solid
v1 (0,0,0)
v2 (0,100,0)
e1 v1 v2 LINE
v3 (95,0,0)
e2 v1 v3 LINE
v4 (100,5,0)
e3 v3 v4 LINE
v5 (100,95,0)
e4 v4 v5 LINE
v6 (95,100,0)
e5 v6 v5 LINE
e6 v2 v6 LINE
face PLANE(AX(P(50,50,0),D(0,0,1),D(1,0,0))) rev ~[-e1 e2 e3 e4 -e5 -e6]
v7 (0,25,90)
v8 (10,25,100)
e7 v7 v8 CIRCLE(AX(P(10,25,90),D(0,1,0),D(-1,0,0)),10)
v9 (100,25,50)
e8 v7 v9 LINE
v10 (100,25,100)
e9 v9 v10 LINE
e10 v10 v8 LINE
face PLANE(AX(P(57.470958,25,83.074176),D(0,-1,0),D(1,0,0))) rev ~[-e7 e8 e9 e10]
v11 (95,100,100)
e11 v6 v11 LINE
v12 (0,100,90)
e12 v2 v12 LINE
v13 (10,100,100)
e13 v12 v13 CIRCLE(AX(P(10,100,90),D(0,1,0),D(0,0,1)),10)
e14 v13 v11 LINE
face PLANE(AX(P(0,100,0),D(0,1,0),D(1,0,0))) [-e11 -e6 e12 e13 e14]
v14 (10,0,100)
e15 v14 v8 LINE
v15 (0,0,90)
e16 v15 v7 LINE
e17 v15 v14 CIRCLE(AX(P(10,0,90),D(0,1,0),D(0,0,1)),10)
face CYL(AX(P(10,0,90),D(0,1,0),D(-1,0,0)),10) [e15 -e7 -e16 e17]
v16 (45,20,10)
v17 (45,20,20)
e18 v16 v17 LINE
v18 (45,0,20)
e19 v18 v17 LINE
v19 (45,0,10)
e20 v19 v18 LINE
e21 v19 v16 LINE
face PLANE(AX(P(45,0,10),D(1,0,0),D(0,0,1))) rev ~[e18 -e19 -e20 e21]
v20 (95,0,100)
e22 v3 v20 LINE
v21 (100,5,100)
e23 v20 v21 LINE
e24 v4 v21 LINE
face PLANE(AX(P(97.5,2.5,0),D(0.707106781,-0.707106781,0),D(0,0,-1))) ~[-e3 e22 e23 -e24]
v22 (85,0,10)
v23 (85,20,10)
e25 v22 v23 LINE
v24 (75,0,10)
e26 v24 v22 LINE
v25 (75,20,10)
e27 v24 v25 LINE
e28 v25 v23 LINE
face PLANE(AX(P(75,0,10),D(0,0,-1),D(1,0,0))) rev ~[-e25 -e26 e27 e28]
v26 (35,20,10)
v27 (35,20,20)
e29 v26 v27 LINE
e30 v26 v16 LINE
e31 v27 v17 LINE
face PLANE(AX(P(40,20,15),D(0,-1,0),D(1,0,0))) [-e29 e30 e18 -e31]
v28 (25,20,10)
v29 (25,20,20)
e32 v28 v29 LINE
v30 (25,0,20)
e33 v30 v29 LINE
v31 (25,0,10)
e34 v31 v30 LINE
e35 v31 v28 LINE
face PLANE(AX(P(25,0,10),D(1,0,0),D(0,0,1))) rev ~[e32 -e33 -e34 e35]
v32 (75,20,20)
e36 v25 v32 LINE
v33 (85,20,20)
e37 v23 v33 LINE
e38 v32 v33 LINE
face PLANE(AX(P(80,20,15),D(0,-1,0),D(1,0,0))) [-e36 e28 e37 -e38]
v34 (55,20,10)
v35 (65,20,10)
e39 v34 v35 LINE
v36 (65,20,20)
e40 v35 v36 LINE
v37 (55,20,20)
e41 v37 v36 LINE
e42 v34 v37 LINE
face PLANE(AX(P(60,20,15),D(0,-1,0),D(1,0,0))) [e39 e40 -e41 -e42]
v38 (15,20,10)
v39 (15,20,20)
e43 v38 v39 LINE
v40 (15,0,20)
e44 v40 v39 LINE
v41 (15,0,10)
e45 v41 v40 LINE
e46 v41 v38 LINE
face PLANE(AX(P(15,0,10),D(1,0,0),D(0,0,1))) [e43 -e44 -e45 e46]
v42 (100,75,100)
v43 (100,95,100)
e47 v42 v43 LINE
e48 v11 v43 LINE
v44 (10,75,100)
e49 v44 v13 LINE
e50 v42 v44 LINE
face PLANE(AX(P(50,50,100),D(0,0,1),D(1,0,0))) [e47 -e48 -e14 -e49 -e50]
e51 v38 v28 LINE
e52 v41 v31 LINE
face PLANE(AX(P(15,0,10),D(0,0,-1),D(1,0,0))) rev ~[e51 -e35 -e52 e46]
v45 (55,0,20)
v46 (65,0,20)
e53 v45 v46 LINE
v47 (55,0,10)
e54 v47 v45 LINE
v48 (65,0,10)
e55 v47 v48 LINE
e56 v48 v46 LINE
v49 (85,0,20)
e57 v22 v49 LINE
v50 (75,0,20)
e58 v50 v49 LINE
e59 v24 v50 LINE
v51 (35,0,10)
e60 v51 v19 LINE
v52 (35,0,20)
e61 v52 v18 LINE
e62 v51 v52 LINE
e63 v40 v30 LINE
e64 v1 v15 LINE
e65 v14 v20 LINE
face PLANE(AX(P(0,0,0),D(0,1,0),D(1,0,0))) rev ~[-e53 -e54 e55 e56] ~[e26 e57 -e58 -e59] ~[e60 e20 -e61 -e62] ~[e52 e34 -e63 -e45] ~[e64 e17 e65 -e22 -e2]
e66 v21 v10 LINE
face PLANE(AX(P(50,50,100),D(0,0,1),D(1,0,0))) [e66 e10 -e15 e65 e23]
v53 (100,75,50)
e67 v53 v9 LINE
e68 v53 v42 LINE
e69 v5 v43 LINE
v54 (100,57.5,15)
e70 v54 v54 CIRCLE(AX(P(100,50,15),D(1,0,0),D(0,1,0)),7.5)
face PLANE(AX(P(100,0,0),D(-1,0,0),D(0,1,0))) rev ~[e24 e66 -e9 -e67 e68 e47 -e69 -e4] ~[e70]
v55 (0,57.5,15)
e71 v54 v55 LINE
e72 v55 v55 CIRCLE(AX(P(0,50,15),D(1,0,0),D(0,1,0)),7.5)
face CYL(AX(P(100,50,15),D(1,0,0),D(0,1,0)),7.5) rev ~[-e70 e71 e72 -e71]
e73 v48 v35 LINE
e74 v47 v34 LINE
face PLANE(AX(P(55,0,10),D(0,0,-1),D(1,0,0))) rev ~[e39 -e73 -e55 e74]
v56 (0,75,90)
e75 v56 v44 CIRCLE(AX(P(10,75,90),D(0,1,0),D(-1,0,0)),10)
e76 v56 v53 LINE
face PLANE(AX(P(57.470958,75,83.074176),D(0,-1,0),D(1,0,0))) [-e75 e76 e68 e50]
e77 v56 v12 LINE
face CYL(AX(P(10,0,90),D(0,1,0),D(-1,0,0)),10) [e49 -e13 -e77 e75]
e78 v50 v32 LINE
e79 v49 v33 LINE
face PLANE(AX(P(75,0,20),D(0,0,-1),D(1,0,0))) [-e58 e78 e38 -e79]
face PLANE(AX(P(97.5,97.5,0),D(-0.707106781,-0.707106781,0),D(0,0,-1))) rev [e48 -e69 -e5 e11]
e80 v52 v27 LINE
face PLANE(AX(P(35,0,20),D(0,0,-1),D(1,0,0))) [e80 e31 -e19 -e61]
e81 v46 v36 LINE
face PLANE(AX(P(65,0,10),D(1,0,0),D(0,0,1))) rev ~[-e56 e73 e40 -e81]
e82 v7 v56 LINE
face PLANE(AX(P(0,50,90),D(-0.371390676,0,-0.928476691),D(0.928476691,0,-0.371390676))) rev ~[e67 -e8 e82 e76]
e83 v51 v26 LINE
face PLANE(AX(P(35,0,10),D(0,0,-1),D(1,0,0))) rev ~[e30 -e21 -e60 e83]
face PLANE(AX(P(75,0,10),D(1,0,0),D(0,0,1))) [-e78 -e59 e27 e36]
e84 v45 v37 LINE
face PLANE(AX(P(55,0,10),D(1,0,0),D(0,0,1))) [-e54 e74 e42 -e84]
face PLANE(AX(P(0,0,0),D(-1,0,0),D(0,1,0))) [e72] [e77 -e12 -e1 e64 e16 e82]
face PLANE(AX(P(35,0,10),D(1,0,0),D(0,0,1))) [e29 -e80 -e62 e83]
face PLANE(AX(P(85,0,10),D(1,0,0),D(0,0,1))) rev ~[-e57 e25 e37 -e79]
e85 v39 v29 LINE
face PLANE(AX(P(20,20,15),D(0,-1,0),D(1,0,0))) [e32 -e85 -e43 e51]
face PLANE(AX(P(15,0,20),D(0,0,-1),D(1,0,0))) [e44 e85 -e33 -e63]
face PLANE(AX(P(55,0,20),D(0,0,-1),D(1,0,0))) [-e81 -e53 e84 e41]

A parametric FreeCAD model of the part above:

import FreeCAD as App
import Part
import Sketcher
from FreeCAD import Vector


def edges_at(feature, points):
    """Names of the edges that pass closest to the given points."""
    edges = feature.Shape.Edges
    near = lambda p: min(range(len(edges)), key=lambda i: edges[i].distToShape(Part.Vertex(*p))[0])
    return sorted({f"Edge{near(p) + 1}" for p in points})

doc = App.newDocument("Part")
body = doc.addObject("PartDesign::Body", "Body")

sketch1 = doc.addObject("Sketcher::SketchObject", "Sketch")
body.addObject(sketch1)
sketch1.AttachmentSupport = (doc.XY_Plane, [""])
sketch1.MapMode = "FlatFace"
sketch1.addGeometry(Part.LineSegment(Vector(0, 100, 0), Vector(0, 0, 0)), False)
sketch1.addGeometry(Part.LineSegment(Vector(0, 0, 0), Vector(100, 0, 0)), False)
sketch1.addGeometry(Part.LineSegment(Vector(100, 0, 0), Vector(100, 100, 0)), False)
sketch1.addGeometry(Part.LineSegment(Vector(100, 100, 0), Vector(0, 100, 0)), False)
sketch1.addConstraint(Sketcher.Constraint("Coincident", 0, 2, 1, 1))
sketch1.addConstraint(Sketcher.Constraint("Coincident", 1, 2, 2, 1))
sketch1.addConstraint(Sketcher.Constraint("Coincident", 2, 2, 3, 1))
sketch1.addConstraint(Sketcher.Constraint("Coincident", 3, 2, 0, 1))
sketch1.addConstraint(Sketcher.Constraint("Vertical", 0))
sketch1.addConstraint(Sketcher.Constraint("Horizontal", 1))
sketch1.addConstraint(Sketcher.Constraint("Vertical", 2))
sketch1.addConstraint(Sketcher.Constraint("Horizontal", 3))
sketch1.addConstraint(Sketcher.Constraint("Coincident", 0, 2, -1, 1))
sketch1.addConstraint(Sketcher.Constraint("Equal", 3, 0))
sketch1.addConstraint(Sketcher.Constraint("DistanceX", 1, 1, 1, 2, 100.0))
pad1 = doc.addObject("PartDesign::Pad", "Pad")
body.addObject(pad1)
pad1.Profile = sketch1
pad1.Length = 100
doc.recompute()

fillet = doc.addObject("PartDesign::Fillet", "Fillet")
body.addObject(fillet)
fillet.Base = (pad1, edges_at(pad1, [(0, 50, 100)]))
fillet.Radius = 10

sketch2 = doc.addObject("Sketcher::SketchObject", "Sketch001")
body.addObject(sketch2)
sketch2.AttachmentSupport = (doc.XZ_Plane, [""])
sketch2.MapMode = "FlatFace"
sketch2.addGeometry(Part.LineSegment(Vector(15, 20, 0), Vector(15, 10, 0)), False)
sketch2.addGeometry(Part.LineSegment(Vector(15, 10, 0), Vector(25, 10, 0)), False)
sketch2.addGeometry(Part.LineSegment(Vector(25, 10, 0), Vector(25, 20, 0)), False)
sketch2.addGeometry(Part.LineSegment(Vector(25, 20, 0), Vector(15, 20, 0)), False)
sketch2.addGeometry(Part.LineSegment(Vector(35, 20, 0), Vector(35, 10, 0)), False)
sketch2.addGeometry(Part.LineSegment(Vector(35, 10, 0), Vector(45, 10, 0)), False)
sketch2.addGeometry(Part.LineSegment(Vector(45, 10, 0), Vector(45, 20, 0)), False)
sketch2.addGeometry(Part.LineSegment(Vector(45, 20, 0), Vector(35, 20, 0)), False)
sketch2.addGeometry(Part.LineSegment(Vector(55, 20, 0), Vector(55, 10, 0)), False)
sketch2.addGeometry(Part.LineSegment(Vector(55, 10, 0), Vector(65, 10, 0)), False)
sketch2.addGeometry(Part.LineSegment(Vector(65, 10, 0), Vector(65, 20, 0)), False)
sketch2.addGeometry(Part.LineSegment(Vector(65, 20, 0), Vector(55, 20, 0)), False)
sketch2.addGeometry(Part.LineSegment(Vector(75, 20, 0), Vector(75, 10, 0)), False)
sketch2.addGeometry(Part.LineSegment(Vector(75, 10, 0), Vector(85, 10, 0)), False)
sketch2.addGeometry(Part.LineSegment(Vector(85, 10, 0), Vector(85, 20, 0)), False)
sketch2.addGeometry(Part.LineSegment(Vector(85, 20, 0), Vector(75, 20, 0)), False)
sketch2.addConstraint(Sketcher.Constraint("Coincident", 0, 2, 1, 1))
sketch2.addConstraint(Sketcher.Constraint("Coincident", 1, 2, 2, 1))
sketch2.addConstraint(Sketcher.Constraint("Coincident", 2, 2, 3, 1))
sketch2.addConstraint(Sketcher.Constraint("Coincident", 3, 2, 0, 1))
sketch2.addConstraint(Sketcher.Constraint("Coincident", 4, 2, 5, 1))
sketch2.addConstraint(Sketcher.Constraint("Coincident", 5, 2, 6, 1))
sketch2.addConstraint(Sketcher.Constraint("Coincident", 6, 2, 7, 1))
sketch2.addConstraint(Sketcher.Constraint("Coincident", 7, 2, 4, 1))
sketch2.addConstraint(Sketcher.Constraint("Coincident", 8, 2, 9, 1))
sketch2.addConstraint(Sketcher.Constraint("Coincident", 9, 2, 10, 1))
sketch2.addConstraint(Sketcher.Constraint("Coincident", 10, 2, 11, 1))
sketch2.addConstraint(Sketcher.Constraint("Coincident", 11, 2, 8, 1))
sketch2.addConstraint(Sketcher.Constraint("Coincident", 12, 2, 13, 1))
sketch2.addConstraint(Sketcher.Constraint("Coincident", 13, 2, 14, 1))
sketch2.addConstraint(Sketcher.Constraint("Coincident", 14, 2, 15, 1))
sketch2.addConstraint(Sketcher.Constraint("Coincident", 15, 2, 12, 1))
sketch2.addConstraint(Sketcher.Constraint("Vertical", 0))
sketch2.addConstraint(Sketcher.Constraint("Horizontal", 1))
sketch2.addConstraint(Sketcher.Constraint("Vertical", 2))
sketch2.addConstraint(Sketcher.Constraint("Horizontal", 3))
sketch2.addConstraint(Sketcher.Constraint("Vertical", 4))
sketch2.addConstraint(Sketcher.Constraint("Horizontal", 5))
sketch2.addConstraint(Sketcher.Constraint("Vertical", 6))
sketch2.addConstraint(Sketcher.Constraint("Horizontal", 7))
sketch2.addConstraint(Sketcher.Constraint("Vertical", 8))
sketch2.addConstraint(Sketcher.Constraint("Horizontal", 9))
sketch2.addConstraint(Sketcher.Constraint("Vertical", 10))
sketch2.addConstraint(Sketcher.Constraint("Horizontal", 11))
sketch2.addConstraint(Sketcher.Constraint("Vertical", 12))
sketch2.addConstraint(Sketcher.Constraint("Horizontal", 13))
sketch2.addConstraint(Sketcher.Constraint("Vertical", 14))
sketch2.addConstraint(Sketcher.Constraint("Horizontal", 15))
sketch2.addConstraint(Sketcher.Constraint("Horizontal", 1, 2, 4, 2))
sketch2.addConstraint(Sketcher.Constraint("Horizontal", 3, 2, 6, 2))
sketch2.addConstraint(Sketcher.Constraint("Horizontal", 5, 2, 8, 2))
sketch2.addConstraint(Sketcher.Constraint("Horizontal", 7, 2, 10, 2))
sketch2.addConstraint(Sketcher.Constraint("Horizontal", 9, 2, 12, 2))
sketch2.addConstraint(Sketcher.Constraint("Horizontal", 11, 2, 14, 2))
sketch2.addConstraint(Sketcher.Constraint("Equal", 3, 5))
sketch2.addConstraint(Sketcher.Constraint("Equal", 7, 9))
sketch2.addConstraint(Sketcher.Constraint("Equal", 11, 13))
sketch2.addConstraint(Sketcher.Constraint("Equal", 15, 0))
sketch2.addConstraint(Sketcher.Constraint("DistanceX", 1, 1, 1, 2, 10.0))
sketch2.addConstraint(Sketcher.Constraint("DistanceX", -1, 1, 0, 2, 15.0))
sketch2.addConstraint(Sketcher.Constraint("DistanceY", -1, 1, 0, 2, 10.0))
sketch2.addConstraint(Sketcher.Constraint("DistanceX", -1, 1, 4, 2, 35.0))
sketch2.addConstraint(Sketcher.Constraint("DistanceX", -1, 1, 8, 2, 55.0))
sketch2.addConstraint(Sketcher.Constraint("DistanceX", -1, 1, 12, 2, 75.0))
pocket1 = doc.addObject("PartDesign::Pocket", "Pocket")
body.addObject(pocket1)
pocket1.Profile = sketch2
pocket1.Length = 20

sketch3 = doc.addObject("Sketcher::SketchObject", "Sketch002")
body.addObject(sketch3)
sketch3.AttachmentSupport = (doc.YZ_Plane, [""])
sketch3.MapMode = "FlatFace"
sketch3.AttachmentOffset = App.Placement(Vector(0, 0, 100), App.Rotation())
sketch3.addGeometry(Part.Circle(Vector(50, 15, 0), Vector(0, 0, 1), 8), False)
sketch3.addConstraint(Sketcher.Constraint("Diameter", 0, 15.0))
sketch3.addConstraint(Sketcher.Constraint("DistanceX", -1, 1, 0, 3, 50.0))
sketch3.addConstraint(Sketcher.Constraint("DistanceY", -1, 1, 0, 3, 15.0))
pocket2 = doc.addObject("PartDesign::Pocket", "Pocket001")
body.addObject(pocket2)
pocket2.Profile = sketch3
pocket2.Type = "ThroughAll"

sketch4 = doc.addObject("Sketcher::SketchObject", "Sketch003")
body.addObject(sketch4)
sketch4.AttachmentSupport = (doc.XZ_Plane, [""])
sketch4.MapMode = "FlatFace"
sketch4.AttachmentOffset = App.Placement(Vector(0, 0, -50), App.Rotation())
sketch4.addGeometry(Part.LineSegment(Vector(0, 90, 0), Vector(100, 50, 0)), False)
sketch4.addGeometry(Part.LineSegment(Vector(100, 50, 0), Vector(100, 100, 0)), False)
sketch4.addGeometry(Part.LineSegment(Vector(100, 100, 0), Vector(0, 100, 0)), False)
sketch4.addGeometry(Part.LineSegment(Vector(0, 100, 0), Vector(0, 90, 0)), False)
sketch4.addConstraint(Sketcher.Constraint("Coincident", 0, 2, 1, 1))
sketch4.addConstraint(Sketcher.Constraint("Coincident", 1, 2, 2, 1))
sketch4.addConstraint(Sketcher.Constraint("Coincident", 2, 2, 3, 1))
sketch4.addConstraint(Sketcher.Constraint("Coincident", 3, 2, 0, 1))
sketch4.addConstraint(Sketcher.Constraint("Vertical", 1))
sketch4.addConstraint(Sketcher.Constraint("Horizontal", 2))
sketch4.addConstraint(Sketcher.Constraint("Vertical", 3))
sketch4.addConstraint(Sketcher.Constraint("PointOnObject", 2, 2, -2))
sketch4.addConstraint(Sketcher.Constraint("DistanceX", 2, 2, 2, 1, 100.0))
sketch4.addConstraint(Sketcher.Constraint("DistanceY", 1, 1, 1, 2, 50.0))
sketch4.addConstraint(Sketcher.Constraint("DistanceY", 3, 2, 3, 1, 10.0))
sketch4.addConstraint(Sketcher.Constraint("DistanceY", -1, 1, 0, 2, 50.0))
pocket3 = doc.addObject("PartDesign::Pocket", "Pocket002")
body.addObject(pocket3)
pocket3.Profile = sketch4
pocket3.Length = 50
pocket3.Midplane = True
doc.recompute()

chamfer = doc.addObject("PartDesign::Chamfer", "Chamfer")
body.addObject(chamfer)
chamfer.Base = (pocket3, edges_at(pocket3, [(100, 0, 50), (100, 100, 50)]))
chamfer.Size = 5

doc.recompute()
